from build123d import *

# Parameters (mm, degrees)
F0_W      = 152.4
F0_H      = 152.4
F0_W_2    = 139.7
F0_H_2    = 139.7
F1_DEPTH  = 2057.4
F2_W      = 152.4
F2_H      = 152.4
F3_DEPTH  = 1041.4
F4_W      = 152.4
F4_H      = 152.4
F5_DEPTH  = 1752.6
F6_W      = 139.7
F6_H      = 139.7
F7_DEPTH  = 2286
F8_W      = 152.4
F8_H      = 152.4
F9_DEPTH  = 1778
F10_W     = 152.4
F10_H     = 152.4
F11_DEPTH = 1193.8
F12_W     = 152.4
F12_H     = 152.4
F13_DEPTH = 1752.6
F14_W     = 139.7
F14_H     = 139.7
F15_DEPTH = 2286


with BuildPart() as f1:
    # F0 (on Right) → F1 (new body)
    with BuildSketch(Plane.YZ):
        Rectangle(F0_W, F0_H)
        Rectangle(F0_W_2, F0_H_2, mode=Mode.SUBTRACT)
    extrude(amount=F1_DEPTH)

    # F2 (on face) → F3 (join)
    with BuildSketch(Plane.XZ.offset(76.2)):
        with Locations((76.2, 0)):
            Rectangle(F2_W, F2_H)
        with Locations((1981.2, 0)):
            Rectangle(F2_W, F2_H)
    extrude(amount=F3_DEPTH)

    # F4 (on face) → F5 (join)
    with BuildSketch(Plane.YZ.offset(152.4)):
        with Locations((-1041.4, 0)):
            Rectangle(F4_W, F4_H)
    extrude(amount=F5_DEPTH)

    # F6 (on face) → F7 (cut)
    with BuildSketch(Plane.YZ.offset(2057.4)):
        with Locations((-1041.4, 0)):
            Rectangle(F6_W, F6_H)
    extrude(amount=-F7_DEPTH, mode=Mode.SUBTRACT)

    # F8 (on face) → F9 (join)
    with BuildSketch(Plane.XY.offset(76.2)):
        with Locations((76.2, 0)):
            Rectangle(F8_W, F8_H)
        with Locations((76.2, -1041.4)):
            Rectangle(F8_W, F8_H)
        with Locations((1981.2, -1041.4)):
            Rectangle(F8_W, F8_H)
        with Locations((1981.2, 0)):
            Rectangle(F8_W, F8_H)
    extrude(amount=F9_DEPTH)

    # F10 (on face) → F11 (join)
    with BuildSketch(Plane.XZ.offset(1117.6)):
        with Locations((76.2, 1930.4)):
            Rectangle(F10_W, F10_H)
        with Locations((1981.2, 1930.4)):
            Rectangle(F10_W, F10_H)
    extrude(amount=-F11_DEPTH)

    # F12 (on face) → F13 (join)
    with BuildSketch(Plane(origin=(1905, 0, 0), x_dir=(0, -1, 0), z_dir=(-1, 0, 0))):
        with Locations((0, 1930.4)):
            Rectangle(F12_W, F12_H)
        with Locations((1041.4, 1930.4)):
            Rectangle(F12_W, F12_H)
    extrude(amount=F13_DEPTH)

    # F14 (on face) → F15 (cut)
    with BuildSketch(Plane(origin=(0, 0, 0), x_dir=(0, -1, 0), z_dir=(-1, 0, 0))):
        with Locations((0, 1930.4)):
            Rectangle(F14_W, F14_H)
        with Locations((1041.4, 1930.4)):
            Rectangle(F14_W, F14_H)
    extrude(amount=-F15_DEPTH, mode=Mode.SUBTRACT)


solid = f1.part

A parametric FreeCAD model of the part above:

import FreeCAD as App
import Part
import Sketcher
Q = App.Units.Quantity

doc = App.newDocument("Part")
body = doc.addObject("PartDesign::Body", "Body")

sketch1 = body.newObject("Sketcher::SketchObject", "Sketch")
sketch1.AttachmentSupport = (doc.getObject("YZ_Plane"), [""])
sketch1.MapMode = "FlatFace"
sketch1.addGeometry([
    Part.LineSegment(App.Vector(-76, 76, 0), App.Vector(-76, -76, 0)),
    Part.LineSegment(App.Vector(-76, -76, 0), App.Vector(76, -76, 0)),
    Part.LineSegment(App.Vector(76, -76, 0), App.Vector(76, 76, 0)),
    Part.LineSegment(App.Vector(76, 76, 0), App.Vector(-76, 76, 0)),
    Part.LineSegment(App.Vector(70, -70, 0), App.Vector(-70, -70, 0)),
    Part.LineSegment(App.Vector(-70, -70, 0), App.Vector(-70, 70, 0)),
    Part.LineSegment(App.Vector(-70, 70, 0), App.Vector(70, 70, 0)),
    Part.LineSegment(App.Vector(70, 70, 0), App.Vector(70, -70, 0)),
], False)
sketch1.addConstraint([
    Sketcher.Constraint("Coincident", 0, 2, 1, 1),
    Sketcher.Constraint("Coincident", 1, 2, 2, 1),
    Sketcher.Constraint("Coincident", 2, 2, 3, 1),
    Sketcher.Constraint("Coincident", 3, 2, 0, 1),
    Sketcher.Constraint("Coincident", 4, 2, 5, 1),
    Sketcher.Constraint("Coincident", 5, 2, 6, 1),
    Sketcher.Constraint("Coincident", 6, 2, 7, 1),
    Sketcher.Constraint("Coincident", 7, 2, 4, 1),
    Sketcher.Constraint("Vertical", 0),
    Sketcher.Constraint("Horizontal", 1),
    Sketcher.Constraint("Vertical", 2),
    Sketcher.Constraint("Horizontal", 3),
    Sketcher.Constraint("Horizontal", 4),
    Sketcher.Constraint("Vertical", 5),
    Sketcher.Constraint("Horizontal", 6),
    Sketcher.Constraint("Vertical", 7),
    Sketcher.Constraint("Symmetric", 0, 2, 2, 2, -1, 1),
    Sketcher.Constraint("Symmetric", 4, 2, 6, 2, -1, 1),
    Sketcher.Constraint("Equal", 3, 0),
    Sketcher.Constraint("Equal", 6, 5),
    Sketcher.Constraint("DistanceX", 1, 1, 1, 2, Q("6 in")),
    Sketcher.Constraint("DistanceX", 4, 2, 4, 1, Q("5.5 in")),
])
pad1 = body.newObject("PartDesign::Pad", "Pad")
pad1.Profile = sketch1
pad1.Length = Q("81 in")

sketch2 = body.newObject("Sketcher::SketchObject", "Sketch001")
sketch2.AttachmentSupport = (doc.getObject("XZ_Plane"), [""])
sketch2.MapMode = "FlatFace"
sketch2.AttachmentOffset = App.Placement(App.Vector(0, 0, 3 * 25.4), App.Rotation())
sketch2.addGeometry([
    Part.LineSegment(App.Vector(0, 76, 0), App.Vector(0, -76, 0)),
    Part.LineSegment(App.Vector(0, -76, 0), App.Vector(152, -76, 0)),
    Part.LineSegment(App.Vector(152, -76, 0), App.Vector(152, 76, 0)),
    Part.LineSegment(App.Vector(152, 76, 0), App.Vector(0, 76, 0)),
    Part.LineSegment(App.Vector(1905, 76, 0), App.Vector(1905, -76, 0)),
    Part.LineSegment(App.Vector(1905, -76, 0), App.Vector(2057, -76, 0)),
    Part.LineSegment(App.Vector(2057, -76, 0), App.Vector(2057, 76, 0)),
    Part.LineSegment(App.Vector(2057, 76, 0), App.Vector(1905, 76, 0)),
], False)
sketch2.addConstraint([
    Sketcher.Constraint("Coincident", 0, 2, 1, 1),
    Sketcher.Constraint("Coincident", 1, 2, 2, 1),
    Sketcher.Constraint("Coincident", 2, 2, 3, 1),
    Sketcher.Constraint("Coincident", 3, 2, 0, 1),
    Sketcher.Constraint("Coincident", 4, 2, 5, 1),
    Sketcher.Constraint("Coincident", 5, 2, 6, 1),
    Sketcher.Constraint("Coincident", 6, 2, 7, 1),
    Sketcher.Constraint("Coincident", 7, 2, 4, 1),
    Sketcher.Constraint("Vertical", 0),
    Sketcher.Constraint("Horizontal", 1),
    Sketcher.Constraint("Vertical", 2),
    Sketcher.Constraint("Horizontal", 3),
    Sketcher.Constraint("Vertical", 4),
    Sketcher.Constraint("Horizontal", 5),
    Sketcher.Constraint("Vertical", 6),
    Sketcher.Constraint("Horizontal", 7),
    Sketcher.Constraint("Symmetric", 0, 2, 3, 2, -1, 1),
    Sketcher.Constraint("Horizontal", 1, 2, 4, 2),
    Sketcher.Constraint("Horizontal", 3, 2, 6, 2),
    Sketcher.Constraint("Equal", 3, 5),
    Sketcher.Constraint("Equal", 7, 0),
    Sketcher.Constraint("DistanceX", 1, 1, 1, 2, Q("6 in")),
    Sketcher.Constraint("DistanceX", -1, 1, 4, 2, Q("75 in")),
])
pad2 = body.newObject("PartDesign::Pad", "Pad001")
pad2.Profile = sketch2
pad2.Length = Q("41 in")

sketch3 = body.newObject("Sketcher::SketchObject", "Sketch002")
sketch3.AttachmentSupport = (doc.getObject("YZ_Plane"), [""])
sketch3.MapMode = "FlatFace"
sketch3.AttachmentOffset = App.Placement(App.Vector(0, 0, 6 * 25.4), App.Rotation())
sketch3.addGeometry([
    Part.LineSegment(App.Vector(-1118, 76, 0), App.Vector(-1118, -76, 0)),
    Part.LineSegment(App.Vector(-1118, -76, 0), App.Vector(-965, -76, 0)),
    Part.LineSegment(App.Vector(-965, -76, 0), App.Vector(-965, 76, 0)),
    Part.LineSegment(App.Vector(-965, 76, 0), App.Vector(-1118, 76, 0)),
], False)
sketch3.addConstraint([
    Sketcher.Constraint("Coincident", 0, 2, 1, 1),
    Sketcher.Constraint("Coincident", 1, 2, 2, 1),
    Sketcher.Constraint("Coincident", 2, 2, 3, 1),
    Sketcher.Constraint("Coincident", 3, 2, 0, 1),
    Sketcher.Constraint("Vertical", 0),
    Sketcher.Constraint("Horizontal", 1),
    Sketcher.Constraint("Vertical", 2),
    Sketcher.Constraint("Horizontal", 3),
    Sketcher.Constraint("Equal", 3, 0),
    Sketcher.Constraint("DistanceX", 1, 1, 1, 2, Q("6 in")),
    Sketcher.Constraint("DistanceX", 0, 2, -1, 1, Q("44 in")),
    Sketcher.Constraint("DistanceY", 0, 2, -1, 1, Q("3 in")),
])
pad3 = body.newObject("PartDesign::Pad", "Pad002")
pad3.Profile = sketch3
pad3.Length = Q("69 in")

sketch4 = body.newObject("Sketcher::SketchObject", "Sketch003")
sketch4.AttachmentSupport = (doc.getObject("YZ_Plane"), [""])
sketch4.MapMode = "FlatFace"
sketch4.AttachmentOffset = App.Placement(App.Vector(0, 0, 81 * 25.4), App.Rotation())
sketch4.addGeometry([
    Part.LineSegment(App.Vector(-1111, 70, 0), App.Vector(-1111, -70, 0)),
    Part.LineSegment(App.Vector(-1111, -70, 0), App.Vector(-972, -70, 0)),
    Part.LineSegment(App.Vector(-972, -70, 0), App.Vector(-972, 70, 0)),
    Part.LineSegment(App.Vector(-972, 70, 0), App.Vector(-1111, 70, 0)),
], False)
sketch4.addConstraint([
    Sketcher.Constraint("Coincident", 0, 2, 1, 1),
    Sketcher.Constraint("Coincident", 1, 2, 2, 1),
    Sketcher.Constraint("Coincident", 2, 2, 3, 1),
    Sketcher.Constraint("Coincident", 3, 2, 0, 1),
    Sketcher.Constraint("Vertical", 0),
    Sketcher.Constraint("Horizontal", 1),
    Sketcher.Constraint("Vertical", 2),
    Sketcher.Constraint("Horizontal", 3),
    Sketcher.Constraint("Equal", 3, 0),
    Sketcher.Constraint("DistanceX", 1, 1, 1, 2, Q("5.5 in")),
    Sketcher.Constraint("DistanceX", 0, 2, -1, 1, Q("43.75 in")),
    Sketcher.Constraint("DistanceY", 0, 2, -1, 1, Q("2.75 in")),
])
pocket1 = body.newObject("PartDesign::Pocket", "Pocket")
pocket1.Profile = sketch4
pocket1.Length = Q("90 in")

sketch5 = body.newObject("Sketcher::SketchObject", "Sketch004")
sketch5.AttachmentSupport = (doc.getObject("XY_Plane"), [""])
sketch5.MapMode = "FlatFace"
sketch5.AttachmentOffset = App.Placement(App.Vector(0, 0, 3 * 25.4), App.Rotation())
sketch5.addGeometry([
    Part.LineSegment(App.Vector(0, 76, 0), App.Vector(0, -76, 0)),
    Part.LineSegment(App.Vector(0, -76, 0), App.Vector(152, -76, 0)),
    Part.LineSegment(App.Vector(152, -76, 0), App.Vector(152, 76, 0)),
    Part.LineSegment(App.Vector(152, 76, 0), App.Vector(0, 76, 0)),
    Part.LineSegment(App.Vector(0, -965, 0), App.Vector(0, -1118, 0)),
    Part.LineSegment(App.Vector(0, -1118, 0), App.Vector(152, -1118, 0)),
    Part.LineSegment(App.Vector(152, -1118, 0), App.Vector(152, -965, 0)),
    Part.LineSegment(App.Vector(152, -965, 0), App.Vector(0, -965, 0)),
    Part.LineSegment(App.Vector(1905, -965, 0), App.Vector(1905, -1118, 0)),
    Part.LineSegment(App.Vector(1905, -1118, 0), App.Vector(2057, -1118, 0)),
    Part.LineSegment(App.Vector(2057, -1118, 0), App.Vector(2057, -965, 0)),
    Part.LineSegment(App.Vector(2057, -965, 0), App.Vector(1905, -965, 0)),
    Part.LineSegment(App.Vector(1905, 76, 0), App.Vector(1905, -76, 0)),
    Part.LineSegment(App.Vector(1905, -76, 0), App.Vector(2057, -76, 0)),
    Part.LineSegment(App.Vector(2057, -76, 0), App.Vector(2057, 76, 0)),
    Part.LineSegment(App.Vector(2057, 76, 0), App.Vector(1905, 76, 0)),
], False)
sketch5.addConstraint([
    Sketcher.Constraint("Coincident", 0, 2, 1, 1),
    Sketcher.Constraint("Coincident", 1, 2, 2, 1),
    Sketcher.Constraint("Coincident", 2, 2, 3, 1),
    Sketcher.Constraint("Coincident", 3, 2, 0, 1),
    Sketcher.Constraint("Coincident", 4, 2, 5, 1),
    Sketcher.Constraint("Coincident", 5, 2, 6, 1),
    Sketcher.Constraint("Coincident", 6, 2, 7, 1),
    Sketcher.Constraint("Coincident", 7, 2, 4, 1),
    Sketcher.Constraint("Coincident", 8, 2, 9, 1),
    Sketcher.Constraint("Coincident", 9, 2, 10, 1),
    Sketcher.Constraint("Coincident", 10, 2, 11, 1),
    Sketcher.Constraint("Coincident", 11, 2, 8, 1),
    Sketcher.Constraint("Coincident", 12, 2, 13, 1),
    Sketcher.Constraint("Coincident", 13, 2, 14, 1),
    Sketcher.Constraint("Coincident", 14, 2, 15, 1),
    Sketcher.Constraint("Coincident", 15, 2, 12, 1),
    Sketcher.Constraint("Vertical", 0),
    Sketcher.Constraint("Horizontal", 1),
    Sketcher.Constraint("Vertical", 2),
    Sketcher.Constraint("Horizontal", 3),
    Sketcher.Constraint("Vertical", 4),
    Sketcher.Constraint("Horizontal", 5),
    Sketcher.Constraint("Vertical", 6),
    Sketcher.Constraint("Horizontal", 7),
    Sketcher.Constraint("Vertical", 8),
    Sketcher.Constraint("Horizontal", 9),
    Sketcher.Constraint("Vertical", 10),
    Sketcher.Constraint("Horizontal", 11),
    Sketcher.Constraint("Vertical", 12),
    Sketcher.Constraint("Horizontal", 13),
    Sketcher.Constraint("Vertical", 14),
    Sketcher.Constraint("Horizontal", 15),
    Sketcher.Constraint("Symmetric", 0, 2, 3, 2, -1, 1),
    Sketcher.Constraint("PointOnObject", 4, 2, -2),
    Sketcher.Constraint("Horizontal", 5, 2, 8, 2),
    Sketcher.Constraint("Horizontal", 7, 2, 10, 2),
    Sketcher.Constraint("Horizontal", 1, 2, 12, 2),
    Sketcher.Constraint("Horizontal", 3, 2, 14, 2),
    Sketcher.Constraint("Vertical", 2, 2, 5, 2),
    Sketcher.Constraint("Vertical", 11, 2, 12, 2),
    Sketcher.Constraint("Vertical", 10, 2, 13, 2),
    Sketcher.Constraint("Equal", 7, 9),
    Sketcher.Constraint("Equal", 15, 0),
    Sketcher.Constraint("Equal", 2, 4),
    Sketcher.Constraint("DistanceX", 1, 1, 1, 2, Q("6 in")),
    Sketcher.Constraint("DistanceY", 4, 2, -1, 1, Q("44 in")),
    Sketcher.Constraint("DistanceX", -1, 1, 8, 2, Q("75 in")),
])
pad4 = body.newObject("PartDesign::Pad", "Pad003")
pad4.Profile = sketch5
pad4.Length = Q("70 in")

sketch6 = body.newObject("Sketcher::SketchObject", "Sketch005")
sketch6.AttachmentSupport = (doc.getObject("XZ_Plane"), [""])
sketch6.MapMode = "FlatFace"
sketch6.AttachmentOffset = App.Placement(App.Vector(0, 0, 44 * 25.4), App.Rotation())
sketch6.addGeometry([
    Part.LineSegment(App.Vector(0, 2007, 0), App.Vector(0, 1854, 0)),
    Part.LineSegment(App.Vector(0, 1854, 0), App.Vector(152, 1854, 0)),
    Part.LineSegment(App.Vector(152, 1854, 0), App.Vector(152, 2007, 0)),
    Part.LineSegment(App.Vector(152, 2007, 0), App.Vector(0, 2007, 0)),
    Part.LineSegment(App.Vector(1905, 2007, 0), App.Vector(1905, 1854, 0)),
    Part.LineSegment(App.Vector(1905, 1854, 0), App.Vector(2057, 1854, 0)),
    Part.LineSegment(App.Vector(2057, 1854, 0), App.Vector(2057, 2007, 0)),
    Part.LineSegment(App.Vector(2057, 2007, 0), App.Vector(1905, 2007, 0)),
], False)
sketch6.addConstraint([
    Sketcher.Constraint("Coincident", 0, 2, 1, 1),
    Sketcher.Constraint("Coincident", 1, 2, 2, 1),
    Sketcher.Constraint("Coincident", 2, 2, 3, 1),
    Sketcher.Constraint("Coincident", 3, 2, 0, 1),
    Sketcher.Constraint("Coincident", 4, 2, 5, 1),
    Sketcher.Constraint("Coincident", 5, 2, 6, 1),
    Sketcher.Constraint("Coincident", 6, 2, 7, 1),
    Sketcher.Constraint("Coincident", 7, 2, 4, 1),
    Sketcher.Constraint("Vertical", 0),
    Sketcher.Constraint("Horizontal", 1),
    Sketcher.Constraint("Vertical", 2),
    Sketcher.Constraint("Horizontal", 3),
    Sketcher.Constraint("Vertical", 4),
    Sketcher.Constraint("Horizontal", 5),
    Sketcher.Constraint("Vertical", 6),
    Sketcher.Constraint("Horizontal", 7),
    Sketcher.Constraint("PointOnObject", 0, 2, -2),
    Sketcher.Constraint("Horizontal", 1, 2, 4, 2),
    Sketcher.Constraint("Horizontal", 3, 2, 6, 2),
    Sketcher.Constraint("Equal", 3, 5),
    Sketcher.Constraint("Equal", 7, 0),
    Sketcher.Constraint("DistanceX", 1, 1, 1, 2, Q("6 in")),
    Sketcher.Constraint("DistanceY", -1, 1, 0, 2, Q("73 in")),
    Sketcher.Constraint("DistanceX", -1, 1, 4, 2, Q("75 in")),
])
pad5 = body.newObject("PartDesign::Pad", "Pad004")
pad5.Profile = sketch6
pad5.Length = Q("47 in")
pad5.Reversed = True

sketch7 = body.newObject("Sketcher::SketchObject", "Sketch006")
sketch7.AttachmentSupport = (doc.getObject("YZ_Plane"), [""])
sketch7.MapMode = "FlatFace"
sketch7.AttachmentOffset = App.Placement(App.Vector(0, 0, 75 * 25.4), App.Rotation())
sketch7.addGeometry([
    Part.LineSegment(App.Vector(76, 2007, 0), App.Vector(76, 1854, 0)),
    Part.LineSegment(App.Vector(76, 1854, 0), App.Vector(-76, 1854, 0)),
    Part.LineSegment(App.Vector(-76, 1854, 0), App.Vector(-76, 2007, 0)),
    Part.LineSegment(App.Vector(-76, 2007, 0), App.Vector(76, 2007, 0)),
    Part.LineSegment(App.Vector(-965, 2007, 0), App.Vector(-965, 1854, 0)),
    Part.LineSegment(App.Vector(-965, 1854, 0), App.Vector(-1118, 1854, 0)),
    Part.LineSegment(App.Vector(-1118, 1854, 0), App.Vector(-1118, 2007, 0)),
    Part.LineSegment(App.Vector(-1118, 2007, 0), App.Vector(-965, 2007, 0)),
], False)
sketch7.addConstraint([
    Sketcher.Constraint("Coincident", 0, 2, 1, 1),
    Sketcher.Constraint("Coincident", 1, 2, 2, 1),
    Sketcher.Constraint("Coincident", 2, 2, 3, 1),
    Sketcher.Constraint("Coincident", 3, 2, 0, 1),
    Sketcher.Constraint("Coincident", 4, 2, 5, 1),
    Sketcher.Constraint("Coincident", 5, 2, 6, 1),
    Sketcher.Constraint("Coincident", 6, 2, 7, 1),
    Sketcher.Constraint("Coincident", 7, 2, 4, 1),
    Sketcher.Constraint("Vertical", 0),
    Sketcher.Constraint("Horizontal", 1),
    Sketcher.Constraint("Vertical", 2),
    Sketcher.Constraint("Horizontal", 3),
    Sketcher.Constraint("Vertical", 4),
    Sketcher.Constraint("Horizontal", 5),
    Sketcher.Constraint("Vertical", 6),
    Sketcher.Constraint("Horizontal", 7),
    Sketcher.Constraint("Horizontal", 1, 2, 4, 2),
    Sketcher.Constraint("Horizontal", 3, 2, 6, 2),
    Sketcher.Constraint("Equal", 3, 5),
    Sketcher.Constraint("Equal", 7, 0),
    Sketcher.Constraint("DistanceX", 1, 2, 1, 1, Q("6 in")),
    Sketcher.Constraint("DistanceX", -1, 1, 0, 2, Q("3 in")),
    Sketcher.Constraint("DistanceY", -1, 1, 0, 2, Q("73 in")),
    Sketcher.Constraint("DistanceX", 4, 2, -1, 1, Q("38 in")),
])
pad6 = body.newObject("PartDesign::Pad", "Pad005")
pad6.Profile = sketch7
pad6.Length = Q("69 in")
pad6.Reversed = True

sketch8 = body.newObject("Sketcher::SketchObject", "Sketch007")
sketch8.AttachmentSupport = (doc.getObject("YZ_Plane"), [""])
sketch8.MapMode = "FlatFace"
sketch8.addGeometry([
    Part.LineSegment(App.Vector(70, 2000, 0), App.Vector(70, 1861, 0)),
    Part.LineSegment(App.Vector(70, 1861, 0), App.Vector(-70, 1861, 0)),
    Part.LineSegment(App.Vector(-70, 1861, 0), App.Vector(-70, 2000, 0)),
    Part.LineSegment(App.Vector(-70, 2000, 0), App.Vector(70, 2000, 0)),
    Part.LineSegment(App.Vector(-972, 2000, 0), App.Vector(-972, 1861, 0)),
    Part.LineSegment(App.Vector(-972, 1861, 0), App.Vector(-1111, 1861, 0)),
    Part.LineSegment(App.Vector(-1111, 1861, 0), App.Vector(-1111, 2000, 0)),
    Part.LineSegment(App.Vector(-1111, 2000, 0), App.Vector(-972, 2000, 0)),
], False)
sketch8.addConstraint([
    Sketcher.Constraint("Coincident", 0, 2, 1, 1),
    Sketcher.Constraint("Coincident", 1, 2, 2, 1),
    Sketcher.Constraint("Coincident", 2, 2, 3, 1),
    Sketcher.Constraint("Coincident", 3, 2, 0, 1),
    Sketcher.Constraint("Coincident", 4, 2, 5, 1),
    Sketcher.Constraint("Coincident", 5, 2, 6, 1),
    Sketcher.Constraint("Coincident", 6, 2, 7, 1),
    Sketcher.Constraint("Coincident", 7, 2, 4, 1),
    Sketcher.Constraint("Vertical", 0),
    Sketcher.Constraint("Horizontal", 1),
    Sketcher.Constraint("Vertical", 2),
    Sketcher.Constraint("Horizontal", 3),
    Sketcher.Constraint("Vertical", 4),
    Sketcher.Constraint("Horizontal", 5),
    Sketcher.Constraint("Vertical", 6),
    Sketcher.Constraint("Horizontal", 7),
    Sketcher.Constraint("Horizontal", 1, 2, 4, 2),
    Sketcher.Constraint("Horizontal", 3, 2, 6, 2),
    Sketcher.Constraint("Equal", 3, 5),
    Sketcher.Constraint("Equal", 7, 0),
    Sketcher.Constraint("DistanceX", 1, 2, 1, 1, Q("5.5 in")),
    Sketcher.Constraint("DistanceX", 4, 2, 0, 2, Q("41 in")),
    Sketcher.Constraint("DistanceX", -1, 1, 0, 2, Q("2.75 in")),
    Sketcher.Constraint("DistanceY", -1, 1, 0, 2, Q("73.25 in")),
])
pocket2 = body.newObject("PartDesign::Pocket", "Pocket001")
pocket2.Profile = sketch8
pocket2.Length = Q("90 in")
pocket2.Reversed = True

doc.recompute()
